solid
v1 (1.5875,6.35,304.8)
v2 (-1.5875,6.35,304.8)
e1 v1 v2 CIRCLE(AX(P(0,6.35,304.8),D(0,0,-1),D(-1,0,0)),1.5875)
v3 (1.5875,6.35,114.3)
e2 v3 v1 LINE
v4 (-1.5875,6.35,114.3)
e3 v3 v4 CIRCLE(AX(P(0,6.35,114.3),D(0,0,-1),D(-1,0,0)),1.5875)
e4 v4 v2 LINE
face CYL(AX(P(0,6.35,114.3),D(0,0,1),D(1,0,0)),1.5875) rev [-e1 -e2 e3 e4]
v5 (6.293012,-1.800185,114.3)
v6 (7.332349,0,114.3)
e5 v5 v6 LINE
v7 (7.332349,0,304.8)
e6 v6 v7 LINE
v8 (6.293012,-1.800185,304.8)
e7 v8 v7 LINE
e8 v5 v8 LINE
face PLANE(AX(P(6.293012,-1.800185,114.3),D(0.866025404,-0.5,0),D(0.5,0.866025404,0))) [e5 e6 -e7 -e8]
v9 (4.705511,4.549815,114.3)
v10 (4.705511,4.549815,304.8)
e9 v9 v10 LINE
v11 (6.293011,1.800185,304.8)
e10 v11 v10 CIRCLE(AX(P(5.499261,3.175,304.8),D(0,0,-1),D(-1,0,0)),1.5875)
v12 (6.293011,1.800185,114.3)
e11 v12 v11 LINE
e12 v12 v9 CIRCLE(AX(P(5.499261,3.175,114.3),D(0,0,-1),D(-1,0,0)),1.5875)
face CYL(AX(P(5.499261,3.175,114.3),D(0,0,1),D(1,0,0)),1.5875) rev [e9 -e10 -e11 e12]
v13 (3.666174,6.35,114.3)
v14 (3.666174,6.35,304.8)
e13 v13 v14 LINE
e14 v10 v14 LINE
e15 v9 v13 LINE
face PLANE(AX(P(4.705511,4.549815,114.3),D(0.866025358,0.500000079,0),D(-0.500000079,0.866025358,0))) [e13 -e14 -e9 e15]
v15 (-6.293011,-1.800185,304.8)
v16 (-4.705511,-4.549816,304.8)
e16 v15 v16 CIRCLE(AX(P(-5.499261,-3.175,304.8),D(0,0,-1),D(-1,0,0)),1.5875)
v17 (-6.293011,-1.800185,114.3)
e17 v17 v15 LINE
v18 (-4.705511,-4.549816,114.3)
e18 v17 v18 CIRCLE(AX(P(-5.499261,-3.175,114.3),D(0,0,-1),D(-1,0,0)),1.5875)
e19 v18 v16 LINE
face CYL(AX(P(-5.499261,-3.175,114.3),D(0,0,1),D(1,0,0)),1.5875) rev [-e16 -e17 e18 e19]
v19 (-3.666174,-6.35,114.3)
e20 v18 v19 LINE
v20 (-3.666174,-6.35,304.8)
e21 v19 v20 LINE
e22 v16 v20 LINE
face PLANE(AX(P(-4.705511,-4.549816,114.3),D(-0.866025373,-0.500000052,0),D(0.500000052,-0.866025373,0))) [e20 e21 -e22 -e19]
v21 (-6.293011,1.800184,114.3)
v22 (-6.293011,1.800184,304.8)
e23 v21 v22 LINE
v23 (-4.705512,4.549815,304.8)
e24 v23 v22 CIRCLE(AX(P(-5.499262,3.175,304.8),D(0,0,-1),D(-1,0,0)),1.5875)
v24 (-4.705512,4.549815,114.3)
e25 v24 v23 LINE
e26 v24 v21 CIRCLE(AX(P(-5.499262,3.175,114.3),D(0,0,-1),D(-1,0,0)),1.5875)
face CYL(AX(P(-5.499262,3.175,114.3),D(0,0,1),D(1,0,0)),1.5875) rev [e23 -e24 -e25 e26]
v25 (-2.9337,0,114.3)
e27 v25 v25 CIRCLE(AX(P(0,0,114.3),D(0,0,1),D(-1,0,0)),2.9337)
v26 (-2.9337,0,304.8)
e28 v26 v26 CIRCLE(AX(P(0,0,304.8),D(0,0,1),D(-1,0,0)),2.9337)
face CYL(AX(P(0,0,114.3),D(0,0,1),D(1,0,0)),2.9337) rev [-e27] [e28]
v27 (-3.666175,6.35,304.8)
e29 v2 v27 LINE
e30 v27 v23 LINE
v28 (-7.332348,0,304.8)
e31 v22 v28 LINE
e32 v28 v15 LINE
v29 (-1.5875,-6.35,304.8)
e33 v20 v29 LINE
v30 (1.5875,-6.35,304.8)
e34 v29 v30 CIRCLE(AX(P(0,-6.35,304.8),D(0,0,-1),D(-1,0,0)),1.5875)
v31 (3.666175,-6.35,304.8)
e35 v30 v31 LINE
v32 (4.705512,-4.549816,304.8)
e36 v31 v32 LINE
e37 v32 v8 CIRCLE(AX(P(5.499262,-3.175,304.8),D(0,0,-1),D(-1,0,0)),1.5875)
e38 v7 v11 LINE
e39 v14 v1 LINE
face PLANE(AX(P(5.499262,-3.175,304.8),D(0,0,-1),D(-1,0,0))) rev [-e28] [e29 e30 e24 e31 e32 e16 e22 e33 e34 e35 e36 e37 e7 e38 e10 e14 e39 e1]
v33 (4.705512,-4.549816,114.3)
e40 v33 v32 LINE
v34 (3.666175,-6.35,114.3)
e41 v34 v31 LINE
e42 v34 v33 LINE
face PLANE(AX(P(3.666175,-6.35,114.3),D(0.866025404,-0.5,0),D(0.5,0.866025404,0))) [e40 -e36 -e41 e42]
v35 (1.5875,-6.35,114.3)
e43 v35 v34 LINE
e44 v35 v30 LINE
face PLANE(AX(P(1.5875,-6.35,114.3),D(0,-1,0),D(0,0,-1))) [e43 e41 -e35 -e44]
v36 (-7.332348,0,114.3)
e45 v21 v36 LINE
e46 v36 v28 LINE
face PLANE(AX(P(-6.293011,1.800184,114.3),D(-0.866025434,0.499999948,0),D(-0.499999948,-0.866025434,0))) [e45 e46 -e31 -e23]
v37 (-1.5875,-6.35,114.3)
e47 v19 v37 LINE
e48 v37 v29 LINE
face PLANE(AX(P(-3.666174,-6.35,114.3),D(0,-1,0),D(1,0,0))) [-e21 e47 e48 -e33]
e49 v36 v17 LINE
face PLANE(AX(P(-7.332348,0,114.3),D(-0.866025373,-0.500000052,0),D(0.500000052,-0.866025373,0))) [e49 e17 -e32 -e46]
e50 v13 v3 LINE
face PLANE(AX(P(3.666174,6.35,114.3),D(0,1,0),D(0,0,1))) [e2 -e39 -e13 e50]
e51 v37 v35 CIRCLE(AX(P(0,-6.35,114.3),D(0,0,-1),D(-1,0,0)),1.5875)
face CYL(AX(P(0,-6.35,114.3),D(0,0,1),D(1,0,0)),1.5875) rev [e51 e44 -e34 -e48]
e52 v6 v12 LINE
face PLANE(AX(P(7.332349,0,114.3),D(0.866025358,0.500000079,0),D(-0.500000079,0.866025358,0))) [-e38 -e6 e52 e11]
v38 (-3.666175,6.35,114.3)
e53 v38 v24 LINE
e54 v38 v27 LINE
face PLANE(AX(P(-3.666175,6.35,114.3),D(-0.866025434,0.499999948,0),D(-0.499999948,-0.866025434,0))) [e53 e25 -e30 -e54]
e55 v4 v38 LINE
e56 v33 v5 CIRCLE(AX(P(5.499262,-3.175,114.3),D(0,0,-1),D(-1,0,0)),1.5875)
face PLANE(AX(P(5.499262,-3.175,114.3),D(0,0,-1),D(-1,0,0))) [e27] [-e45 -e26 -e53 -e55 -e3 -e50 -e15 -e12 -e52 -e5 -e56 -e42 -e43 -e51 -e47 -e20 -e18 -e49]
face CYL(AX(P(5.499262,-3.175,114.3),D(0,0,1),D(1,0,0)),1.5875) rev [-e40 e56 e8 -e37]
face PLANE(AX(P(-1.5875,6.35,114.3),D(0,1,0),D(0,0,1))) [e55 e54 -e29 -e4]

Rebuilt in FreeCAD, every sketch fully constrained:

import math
import FreeCAD as App
import Part
import Sketcher
Q = App.Units.Quantity

doc = App.newDocument("Part")
body = doc.addObject("PartDesign::Body", "Body")

sketch1 = body.newObject("Sketcher::SketchObject", "Sketch")
sketch1.AttachmentSupport = (doc.getObject("XY_Plane"), [""])
sketch1.MapMode = "FlatFace"
sketch1.AttachmentOffset = App.Placement(App.Vector(0, 0, 12 * 25.4), App.Rotation())
sketch1.addGeometry(Part.LineSegment(App.Vector(6.3, -1.8, 0), App.Vector(7.3, 0, 0)), False)
sketch1.addGeometry(Part.LineSegment(App.Vector(7.3, 0, 0), App.Vector(6.3, 1.8, 0)), False)
sketch1.addGeometry(Part.ArcOfCircle(Part.Circle(App.Vector(5.5, 3.2, 0), App.Vector(0, 0, 1), 1.6), math.radians(120), math.radians(300)), False)
sketch1.addGeometry(Part.LineSegment(App.Vector(4.7, 4.5, 0), App.Vector(3.7, 6.3, 0)), False)
sketch1.addGeometry(Part.LineSegment(App.Vector(3.7, 6.3, 0), App.Vector(1.6, 6.3, 0)), False)
sketch1.addGeometry(Part.ArcOfCircle(Part.Circle(App.Vector(0, 6.3, 0), App.Vector(0, 0, 1), 1.6), math.radians(180), math.radians(360)), False)
sketch1.addGeometry(Part.LineSegment(App.Vector(-1.6, 6.3, 0), App.Vector(-3.7, 6.3, 0)), False)
sketch1.addGeometry(Part.LineSegment(App.Vector(-3.7, 6.3, 0), App.Vector(-4.7, 4.5, 0)), False)
sketch1.addGeometry(Part.ArcOfCircle(Part.Circle(App.Vector(-5.5, 3.2, 0), App.Vector(0, 0, 1), 1.6), math.radians(-120), math.radians(60)), False)
sketch1.addGeometry(Part.LineSegment(App.Vector(-6.3, 1.8, 0), App.Vector(-7.3, 0, 0)), False)
sketch1.addGeometry(Part.LineSegment(App.Vector(-7.3, 0, 0), App.Vector(-6.3, -1.8, 0)), False)
sketch1.addGeometry(Part.ArcOfCircle(Part.Circle(App.Vector(-5.5, -3.2, 0), App.Vector(0, 0, 1), 1.6), math.radians(-60), math.radians(120)), False)
sketch1.addGeometry(Part.LineSegment(App.Vector(-4.7, -4.5, 0), App.Vector(-3.7, -6.4, 0)), False)
sketch1.addGeometry(Part.LineSegment(App.Vector(-3.7, -6.4, 0), App.Vector(-1.6, -6.4, 0)), False)
sketch1.addGeometry(Part.ArcOfCircle(Part.Circle(App.Vector(0, -6.4, 0), App.Vector(0, 0, 1), 1.6), math.radians(0), math.radians(180)), False)
sketch1.addGeometry(Part.LineSegment(App.Vector(1.6, -6.4, 0), App.Vector(3.7, -6.4, 0)), False)
sketch1.addGeometry(Part.LineSegment(App.Vector(3.7, -6.4, 0), App.Vector(4.7, -4.5, 0)), False)
sketch1.addGeometry(Part.ArcOfCircle(Part.Circle(App.Vector(5.5, -3.2, 0), App.Vector(0, 0, 1), 1.6), math.radians(60), math.radians(240)), False)
sketch1.addGeometry(Part.Circle(App.Vector(0, 0, 0), App.Vector(0, 0, 1), 2.9), False)
sketch1.addConstraint(Sketcher.Constraint("Coincident", 0, 2, 1, 1))
sketch1.addConstraint(Sketcher.Constraint("Coincident", 1, 2, 2, 2))
sketch1.addConstraint(Sketcher.Constraint("Coincident", 2, 1, 3, 1))
sketch1.addConstraint(Sketcher.Constraint("Coincident", 3, 2, 4, 1))
sketch1.addConstraint(Sketcher.Constraint("Coincident", 4, 2, 5, 2))
sketch1.addConstraint(Sketcher.Constraint("Coincident", 5, 1, 6, 1))
sketch1.addConstraint(Sketcher.Constraint("Coincident", 6, 2, 7, 1))
sketch1.addConstraint(Sketcher.Constraint("Coincident", 7, 2, 8, 2))
sketch1.addConstraint(Sketcher.Constraint("Coincident", 8, 1, 9, 1))
sketch1.addConstraint(Sketcher.Constraint("Coincident", 9, 2, 10, 1))
sketch1.addConstraint(Sketcher.Constraint("Coincident", 10, 2, 11, 2))
sketch1.addConstraint(Sketcher.Constraint("Coincident", 11, 1, 12, 1))
sketch1.addConstraint(Sketcher.Constraint("Coincident", 12, 2, 13, 1))
sketch1.addConstraint(Sketcher.Constraint("Coincident", 13, 2, 14, 2))
sketch1.addConstraint(Sketcher.Constraint("Coincident", 14, 1, 15, 1))
sketch1.addConstraint(Sketcher.Constraint("Coincident", 15, 2, 16, 1))
sketch1.addConstraint(Sketcher.Constraint("Coincident", 16, 2, 17, 2))
sketch1.addConstraint(Sketcher.Constraint("Coincident", 17, 1, 0, 1))
sketch1.addConstraint(Sketcher.Constraint("Horizontal", 4))
sketch1.addConstraint(Sketcher.Constraint("Horizontal", 6))
sketch1.addConstraint(Sketcher.Constraint("Horizontal", 13))
sketch1.addConstraint(Sketcher.Constraint("Horizontal", 15))
sketch1.addConstraint(Sketcher.Constraint("Coincident", 18, 3, -1, 1))
sketch1.addConstraint(Sketcher.Constraint("Equal", 2, 5))
sketch1.addConstraint(Sketcher.Constraint("Equal", 5, 8))
sketch1.addConstraint(Sketcher.Constraint("Equal", 8, 11))
sketch1.addConstraint(Sketcher.Constraint("Equal", 11, 14))
sketch1.addConstraint(Sketcher.Constraint("Equal", 14, 17))
sketch1.addConstraint(Sketcher.Constraint("Symmetric", 2, 3, 11, 3, -1, 1))
sketch1.addConstraint(Sketcher.Constraint("Symmetric", 5, 3, 14, 3, -1, 1))
sketch1.addConstraint(Sketcher.Constraint("Symmetric", 8, 3, 17, 3, -1, 1))
sketch1.addConstraint(Sketcher.Constraint("Symmetric", 0, 2, 9, 2, -1, 1))
sketch1.addConstraint(Sketcher.Constraint("Symmetric", 3, 2, 12, 2, -1, 1))
sketch1.addConstraint(Sketcher.Constraint("Symmetric", 6, 2, 15, 2, -1, 1))
sketch1.addConstraint(Sketcher.Constraint("Symmetric", 2, 3, 8, 3, -2))
sketch1.addConstraint(Sketcher.Constraint("Symmetric", 4, 2, 5, 1, -2))
sketch1.addConstraint(Sketcher.Constraint("PointOnObject", 0, 2, -1))
sketch1.addConstraint(Sketcher.Constraint("Parallel", 1, 3))
sketch1.addConstraint(Sketcher.Constraint("Parallel", 0, 7))
sketch1.addConstraint(Sketcher.Constraint("Parallel", 7, 9))
sketch1.addConstraint(Sketcher.Constraint("Parallel", 3, 10))
sketch1.addConstraint(Sketcher.Constraint("Parallel", 10, 12))
sketch1.addConstraint(Sketcher.Constraint("Parallel", 9, 16))
sketch1.addConstraint(Sketcher.Constraint("Horizontal", 5, 3, 3, 2))
sketch1.addConstraint(Sketcher.Constraint("Horizontal", 2, 1, 7, 2))
sketch1.addConstraint(Sketcher.Constraint("Horizontal", 1, 2, 8, 1))
sketch1.addConstraint(Sketcher.Constraint("Equal", 1, 3))
sketch1.addConstraint(Sketcher.Constraint("Diameter", 18, Q("0.231 in")))
sketch1.addConstraint(Sketcher.Constraint("Angle", 0, Q("60 deg")))
sketch1.addConstraint(Sketcher.Constraint("Radius", 2, Q("0.0625 in")))
sketch1.addConstraint(Sketcher.Constraint("DistanceY", 14, 3, 5, 3, Q("0.5 in")))
sketch1.addConstraint(Sketcher.Constraint("DistanceY", 11, 3, 8, 3, Q("0.25 in")))
sketch1.addConstraint(Sketcher.Constraint("DistanceX", 2, 3, 1, 2, Q("0.03125 in")))
sketch1.addConstraint(Sketcher.Constraint("DistanceX", 4, 2, 4, 1, 2.078674))
pad1 = body.newObject("PartDesign::Pad", "Pad")
pad1.Profile = sketch1
pad1.Length = Q("7.5 in")
pad1.Reversed = True

doc.recompute()
